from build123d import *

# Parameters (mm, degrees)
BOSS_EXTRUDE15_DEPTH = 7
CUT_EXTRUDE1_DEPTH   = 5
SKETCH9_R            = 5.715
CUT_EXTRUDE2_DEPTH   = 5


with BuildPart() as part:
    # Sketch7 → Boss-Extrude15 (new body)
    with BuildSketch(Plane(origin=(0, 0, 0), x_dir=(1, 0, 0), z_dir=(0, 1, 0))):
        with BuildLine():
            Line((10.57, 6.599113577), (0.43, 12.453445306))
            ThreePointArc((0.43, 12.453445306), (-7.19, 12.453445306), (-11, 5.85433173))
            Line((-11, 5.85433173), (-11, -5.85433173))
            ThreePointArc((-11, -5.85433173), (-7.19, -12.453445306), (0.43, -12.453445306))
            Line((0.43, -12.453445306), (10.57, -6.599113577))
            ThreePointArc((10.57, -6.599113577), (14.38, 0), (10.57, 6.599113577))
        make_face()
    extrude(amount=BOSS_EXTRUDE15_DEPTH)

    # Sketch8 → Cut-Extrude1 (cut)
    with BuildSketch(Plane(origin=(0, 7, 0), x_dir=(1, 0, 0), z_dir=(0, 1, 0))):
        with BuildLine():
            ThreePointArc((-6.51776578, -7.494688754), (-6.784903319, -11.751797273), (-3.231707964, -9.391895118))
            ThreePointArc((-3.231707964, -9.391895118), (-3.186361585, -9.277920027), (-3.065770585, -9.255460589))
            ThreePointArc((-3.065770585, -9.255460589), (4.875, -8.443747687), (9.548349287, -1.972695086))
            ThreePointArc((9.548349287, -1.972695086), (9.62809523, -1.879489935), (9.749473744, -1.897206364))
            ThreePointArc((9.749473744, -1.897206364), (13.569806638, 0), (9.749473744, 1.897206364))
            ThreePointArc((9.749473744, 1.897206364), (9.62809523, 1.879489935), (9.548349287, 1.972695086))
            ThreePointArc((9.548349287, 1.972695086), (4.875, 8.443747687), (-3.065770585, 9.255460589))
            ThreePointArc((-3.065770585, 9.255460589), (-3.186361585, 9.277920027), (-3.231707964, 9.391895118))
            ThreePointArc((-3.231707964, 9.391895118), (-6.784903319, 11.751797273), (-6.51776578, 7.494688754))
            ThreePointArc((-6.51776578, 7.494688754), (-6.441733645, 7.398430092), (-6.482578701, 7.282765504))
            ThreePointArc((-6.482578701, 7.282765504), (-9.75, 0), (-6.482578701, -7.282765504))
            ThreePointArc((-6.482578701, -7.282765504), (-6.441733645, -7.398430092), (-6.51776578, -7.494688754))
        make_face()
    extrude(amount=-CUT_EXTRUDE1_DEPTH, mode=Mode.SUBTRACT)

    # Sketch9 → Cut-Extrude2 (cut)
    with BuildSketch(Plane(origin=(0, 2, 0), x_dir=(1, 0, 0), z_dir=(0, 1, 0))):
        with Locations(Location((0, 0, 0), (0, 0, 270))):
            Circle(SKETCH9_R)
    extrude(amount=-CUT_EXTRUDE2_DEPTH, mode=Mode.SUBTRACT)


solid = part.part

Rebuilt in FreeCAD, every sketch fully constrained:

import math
import FreeCAD as App
import Part
import Sketcher
Q = App.Units.Quantity

doc = App.newDocument("Part")
params = doc.addObject("Spreadsheet::Sheet", "Params")
for row, (alias, value) in enumerate([
    ("sketch1_radius", "0.3 in"),
    ("pad1_length", "7 mm"),
    ("sketch2_radius", "0.09375 in"),
    ("sketch2_radius2", "0.005 in"),
    ("pocket1_length", "5 mm"),
    ("sketch3_diameter", "0.45 in"),
    ("pocket2_length", "5 mm"),
], start=1):
    params.set(f"A{row}", alias)
    params.set(f"B{row}", "=" + value)
    params.setAlias(f"B{row}", alias)

body = doc.addObject("PartDesign::Body", "Body")

# Sketch on XZ plane
sketch1 = body.newObject("Sketcher::SketchObject", "Sketch")
sketch1.AttachmentSupport = (doc.getObject("XZ_Plane"), [""])
sketch1.MapMode = "FlatFace"
sketch1.addGeometry(Part.LineSegment(App.Vector(11, -7, 0), App.Vector(0, -12, 0)), False)
sketch1.addGeometry(Part.ArcOfCircle(Part.Circle(App.Vector(-3, -6, 0), App.Vector(0, 0, 1), 8), math.radians(-180), math.radians(-60)), False)
sketch1.addGeometry(Part.LineSegment(App.Vector(-11, -6, 0), App.Vector(-11, 6, 0)), False)
sketch1.addGeometry(Part.ArcOfCircle(Part.Circle(App.Vector(-3, 6, 0), App.Vector(0, 0, 1), 8), math.radians(60), math.radians(180)), False)
sketch1.addGeometry(Part.LineSegment(App.Vector(0, 12, 0), App.Vector(11, 7, 0)), False)
sketch1.addGeometry(Part.ArcOfCircle(Part.Circle(App.Vector(7, 0, 0), App.Vector(0, 0, 1), 8), math.radians(-60), math.radians(60)), False)
sketch1.addConstraint(Sketcher.Constraint("Tangent", 0, 2, 1, 2))
sketch1.addConstraint(Sketcher.Constraint("Tangent", 1, 1, 2, 1))
sketch1.addConstraint(Sketcher.Constraint("Tangent", 2, 2, 3, 2))
sketch1.addConstraint(Sketcher.Constraint("Tangent", 3, 1, 4, 1))
sketch1.addConstraint(Sketcher.Constraint("Tangent", 4, 2, 5, 2))
sketch1.addConstraint(Sketcher.Constraint("Tangent", 5, 1, 0, 1))
sketch1.addConstraint(Sketcher.Constraint("Vertical", 2))
sketch1.addConstraint(Sketcher.Constraint("Equal", 1, 3))
sketch1.addConstraint(Sketcher.Constraint("Equal", 3, 5))
sketch1.addConstraint(Sketcher.Constraint("Symmetric", 0, 2, 3, 1, -1))
sketch1.addConstraint(Sketcher.Constraint("Radius", 1, Q("0.3 in")))
sketch1.addConstraint(Sketcher.Constraint("Angle", 0, Q("-150 deg")))
sketch1.addConstraint(Sketcher.Constraint("DistanceX", 1, 3, -1, 1, Q("3.38 mm")))
sketch1.addConstraint(Sketcher.Constraint("DistanceX", -1, 1, 5, 3, Q("6.76 mm")))
sketch1.setExpression("Constraints[10]", "Params.sketch1_radius")
pad1 = body.newObject("PartDesign::Pad", "Pad")
pad1.Profile = sketch1
pad1.setExpression("Length", "Params.pad1_length")
pad1.Reversed = True

# Sketch on XZ plane
sketch2 = body.newObject("Sketcher::SketchObject", "Sketch001")
sketch2.AttachmentSupport = (doc.getObject("XZ_Plane"), [""])
sketch2.MapMode = "FlatFace"
sketch2.AttachmentOffset = App.Placement(App.Vector(0, 0, -7), App.Rotation())
sketch2.addGeometry(Part.ArcOfCircle(Part.Circle(App.Vector(-5.59, 9.69, 0), App.Vector(0, 0, 1), 2.38), math.radians(-7), math.radians(247)), False)
sketch2.addGeometry(Part.ArcOfCircle(Part.Circle(App.Vector(-3.11, 9.38, 0), App.Vector(0, 0, 1), 0.13), math.radians(173), math.radians(288)), False)
sketch2.addGeometry(Part.ArcOfCircle(Part.Circle(App.Vector(0, 0, 0), App.Vector(0, 0, 1), 9.75), math.radians(12), math.radians(108)), False)
sketch2.addGeometry(Part.ArcOfCircle(Part.Circle(App.Vector(9.67, 2, 0), App.Vector(0, 0, 1), 0.13), math.radians(-168), math.radians(-53)), False)
sketch2.addGeometry(Part.ArcOfCircle(Part.Circle(App.Vector(11.19, 0, 0), App.Vector(0, 0, 1), 2.38), math.radians(-127), math.radians(127)), False)
sketch2.addGeometry(Part.ArcOfCircle(Part.Circle(App.Vector(9.67, -2, 0), App.Vector(0, 0, 1), 0.13), math.radians(53), math.radians(168)), False)
sketch2.addGeometry(Part.ArcOfCircle(Part.Circle(App.Vector(0, 0, 0), App.Vector(0, 0, 1), 9.75), math.radians(-108), math.radians(-12)), False)
sketch2.addGeometry(Part.ArcOfCircle(Part.Circle(App.Vector(-3.11, -9.38, 0), App.Vector(0, 0, 1), 0.13), math.radians(72), math.radians(187)), False)
sketch2.addGeometry(Part.ArcOfCircle(Part.Circle(App.Vector(-5.59, -9.69, 0), App.Vector(0, 0, 1), 2.38), math.radians(113), math.radians(367)), False)
sketch2.addGeometry(Part.ArcOfCircle(Part.Circle(App.Vector(-6.57, -7.38, 0), App.Vector(0, 0, 1), 0.13), math.radians(-67), math.radians(48)), False)
sketch2.addGeometry(Part.ArcOfCircle(Part.Circle(App.Vector(0, 0, 0), App.Vector(0, 0, 1), 9.75), math.radians(132), math.radians(228)), False)
sketch2.addGeometry(Part.ArcOfCircle(Part.Circle(App.Vector(-6.57, 7.38, 0), App.Vector(0, 0, 1), 0.13), math.radians(-48), math.radians(67)), False)
sketch2.addConstraint(Sketcher.Constraint("Tangent", 0, 1, 1, 1))
sketch2.addConstraint(Sketcher.Constraint("Tangent", 1, 2, 2, 2))
sketch2.addConstraint(Sketcher.Constraint("Tangent", 2, 1, 3, 1))
sketch2.addConstraint(Sketcher.Constraint("Tangent", 3, 2, 4, 2))
sketch2.addConstraint(Sketcher.Constraint("Tangent", 4, 1, 5, 1))
sketch2.addConstraint(Sketcher.Constraint("Tangent", 5, 2, 6, 2))
sketch2.addConstraint(Sketcher.Constraint("Tangent", 6, 1, 7, 1))
sketch2.addConstraint(Sketcher.Constraint("Tangent", 7, 2, 8, 2))
sketch2.addConstraint(Sketcher.Constraint("Tangent", 8, 1, 9, 1))
sketch2.addConstraint(Sketcher.Constraint("Tangent", 9, 2, 10, 2))
sketch2.addConstraint(Sketcher.Constraint("Tangent", 10, 1, 11, 1))
sketch2.addConstraint(Sketcher.Constraint("Tangent", 11, 2, 0, 2))
sketch2.addConstraint(Sketcher.Constraint("Coincident", 2, 3, -1, 1))
sketch2.addConstraint(Sketcher.Constraint("Coincident", 6, 3, -1, 1))
sketch2.addConstraint(Sketcher.Constraint("Coincident", 10, 3, -1, 1))
sketch2.addConstraint(Sketcher.Constraint("Equal", 1, 3))
sketch2.addConstraint(Sketcher.Constraint("Equal", 0, 4))
sketch2.addConstraint(Sketcher.Constraint("Equal", 3, 5))
sketch2.addConstraint(Sketcher.Constraint("Equal", 2, 6))
sketch2.addConstraint(Sketcher.Constraint("Equal", 5, 7))
sketch2.addConstraint(Sketcher.Constraint("Equal", 4, 8))
sketch2.addConstraint(Sketcher.Constraint("Equal", 7, 9))
sketch2.addConstraint(Sketcher.Constraint("Equal", 6, 10))
sketch2.addConstraint(Sketcher.Constraint("Equal", 9, 11))
sketch2.addConstraint(Sketcher.Constraint("Symmetric", 0, 3, 8, 3, -1))
sketch2.addConstraint(Sketcher.Constraint("PointOnObject", 4, 3, -1))
sketch2.addConstraint(Sketcher.Constraint("Radius", 0, Q("0.09375 in")))
sketch2.addConstraint(Sketcher.Constraint("Radius", 1, Q("0.005 in")))
sketch2.addConstraint(Sketcher.Constraint("Radius", 2, Q("9.75 mm")))
sketch2.addConstraint(Sketcher.Constraint("DistanceX", 0, 3, 3, 3, Q("15.267001 mm")))
sketch2.addConstraint(Sketcher.Constraint("DistanceY", 4, 1, 2, 1, Q("3.869901 mm")))
sketch2.addConstraint(Sketcher.Constraint("DistanceX", 9, 2, 8, 3, Q("0.8883 mm")))
sketch2.setExpression("Constraints[26]", "Params.sketch2_radius")
sketch2.setExpression("Constraints[27]", "Params.sketch2_radius2")
pocket1 = body.newObject("PartDesign::Pocket", "Pocket")
pocket1.Profile = sketch2
pocket1.setExpression("Length", "Params.pocket1_length")
pocket1.Reversed = True

# Sketch on XZ plane
sketch3 = body.newObject("Sketcher::SketchObject", "Sketch002")
sketch3.AttachmentSupport = (doc.getObject("XZ_Plane"), [""])
sketch3.MapMode = "FlatFace"
sketch3.AttachmentOffset = App.Placement(App.Vector(0, 0, -2), App.Rotation())
sketch3.addGeometry(Part.Circle(App.Vector(0, 0, 0), App.Vector(0, 0, 1), 6), False)
sketch3.addConstraint(Sketcher.Constraint("Coincident", 0, 3, -1, 1))
sketch3.addConstraint(Sketcher.Constraint("Diameter", 0, Q("0.45 in")))
sketch3.setExpression("Constraints[1]", "Params.sketch3_diameter")
pocket2 = body.newObject("PartDesign::Pocket", "Pocket001")
pocket2.Profile = sketch3
pocket2.setExpression("Length", "Params.pocket2_length")
pocket2.Reversed = True

doc.recompute()
